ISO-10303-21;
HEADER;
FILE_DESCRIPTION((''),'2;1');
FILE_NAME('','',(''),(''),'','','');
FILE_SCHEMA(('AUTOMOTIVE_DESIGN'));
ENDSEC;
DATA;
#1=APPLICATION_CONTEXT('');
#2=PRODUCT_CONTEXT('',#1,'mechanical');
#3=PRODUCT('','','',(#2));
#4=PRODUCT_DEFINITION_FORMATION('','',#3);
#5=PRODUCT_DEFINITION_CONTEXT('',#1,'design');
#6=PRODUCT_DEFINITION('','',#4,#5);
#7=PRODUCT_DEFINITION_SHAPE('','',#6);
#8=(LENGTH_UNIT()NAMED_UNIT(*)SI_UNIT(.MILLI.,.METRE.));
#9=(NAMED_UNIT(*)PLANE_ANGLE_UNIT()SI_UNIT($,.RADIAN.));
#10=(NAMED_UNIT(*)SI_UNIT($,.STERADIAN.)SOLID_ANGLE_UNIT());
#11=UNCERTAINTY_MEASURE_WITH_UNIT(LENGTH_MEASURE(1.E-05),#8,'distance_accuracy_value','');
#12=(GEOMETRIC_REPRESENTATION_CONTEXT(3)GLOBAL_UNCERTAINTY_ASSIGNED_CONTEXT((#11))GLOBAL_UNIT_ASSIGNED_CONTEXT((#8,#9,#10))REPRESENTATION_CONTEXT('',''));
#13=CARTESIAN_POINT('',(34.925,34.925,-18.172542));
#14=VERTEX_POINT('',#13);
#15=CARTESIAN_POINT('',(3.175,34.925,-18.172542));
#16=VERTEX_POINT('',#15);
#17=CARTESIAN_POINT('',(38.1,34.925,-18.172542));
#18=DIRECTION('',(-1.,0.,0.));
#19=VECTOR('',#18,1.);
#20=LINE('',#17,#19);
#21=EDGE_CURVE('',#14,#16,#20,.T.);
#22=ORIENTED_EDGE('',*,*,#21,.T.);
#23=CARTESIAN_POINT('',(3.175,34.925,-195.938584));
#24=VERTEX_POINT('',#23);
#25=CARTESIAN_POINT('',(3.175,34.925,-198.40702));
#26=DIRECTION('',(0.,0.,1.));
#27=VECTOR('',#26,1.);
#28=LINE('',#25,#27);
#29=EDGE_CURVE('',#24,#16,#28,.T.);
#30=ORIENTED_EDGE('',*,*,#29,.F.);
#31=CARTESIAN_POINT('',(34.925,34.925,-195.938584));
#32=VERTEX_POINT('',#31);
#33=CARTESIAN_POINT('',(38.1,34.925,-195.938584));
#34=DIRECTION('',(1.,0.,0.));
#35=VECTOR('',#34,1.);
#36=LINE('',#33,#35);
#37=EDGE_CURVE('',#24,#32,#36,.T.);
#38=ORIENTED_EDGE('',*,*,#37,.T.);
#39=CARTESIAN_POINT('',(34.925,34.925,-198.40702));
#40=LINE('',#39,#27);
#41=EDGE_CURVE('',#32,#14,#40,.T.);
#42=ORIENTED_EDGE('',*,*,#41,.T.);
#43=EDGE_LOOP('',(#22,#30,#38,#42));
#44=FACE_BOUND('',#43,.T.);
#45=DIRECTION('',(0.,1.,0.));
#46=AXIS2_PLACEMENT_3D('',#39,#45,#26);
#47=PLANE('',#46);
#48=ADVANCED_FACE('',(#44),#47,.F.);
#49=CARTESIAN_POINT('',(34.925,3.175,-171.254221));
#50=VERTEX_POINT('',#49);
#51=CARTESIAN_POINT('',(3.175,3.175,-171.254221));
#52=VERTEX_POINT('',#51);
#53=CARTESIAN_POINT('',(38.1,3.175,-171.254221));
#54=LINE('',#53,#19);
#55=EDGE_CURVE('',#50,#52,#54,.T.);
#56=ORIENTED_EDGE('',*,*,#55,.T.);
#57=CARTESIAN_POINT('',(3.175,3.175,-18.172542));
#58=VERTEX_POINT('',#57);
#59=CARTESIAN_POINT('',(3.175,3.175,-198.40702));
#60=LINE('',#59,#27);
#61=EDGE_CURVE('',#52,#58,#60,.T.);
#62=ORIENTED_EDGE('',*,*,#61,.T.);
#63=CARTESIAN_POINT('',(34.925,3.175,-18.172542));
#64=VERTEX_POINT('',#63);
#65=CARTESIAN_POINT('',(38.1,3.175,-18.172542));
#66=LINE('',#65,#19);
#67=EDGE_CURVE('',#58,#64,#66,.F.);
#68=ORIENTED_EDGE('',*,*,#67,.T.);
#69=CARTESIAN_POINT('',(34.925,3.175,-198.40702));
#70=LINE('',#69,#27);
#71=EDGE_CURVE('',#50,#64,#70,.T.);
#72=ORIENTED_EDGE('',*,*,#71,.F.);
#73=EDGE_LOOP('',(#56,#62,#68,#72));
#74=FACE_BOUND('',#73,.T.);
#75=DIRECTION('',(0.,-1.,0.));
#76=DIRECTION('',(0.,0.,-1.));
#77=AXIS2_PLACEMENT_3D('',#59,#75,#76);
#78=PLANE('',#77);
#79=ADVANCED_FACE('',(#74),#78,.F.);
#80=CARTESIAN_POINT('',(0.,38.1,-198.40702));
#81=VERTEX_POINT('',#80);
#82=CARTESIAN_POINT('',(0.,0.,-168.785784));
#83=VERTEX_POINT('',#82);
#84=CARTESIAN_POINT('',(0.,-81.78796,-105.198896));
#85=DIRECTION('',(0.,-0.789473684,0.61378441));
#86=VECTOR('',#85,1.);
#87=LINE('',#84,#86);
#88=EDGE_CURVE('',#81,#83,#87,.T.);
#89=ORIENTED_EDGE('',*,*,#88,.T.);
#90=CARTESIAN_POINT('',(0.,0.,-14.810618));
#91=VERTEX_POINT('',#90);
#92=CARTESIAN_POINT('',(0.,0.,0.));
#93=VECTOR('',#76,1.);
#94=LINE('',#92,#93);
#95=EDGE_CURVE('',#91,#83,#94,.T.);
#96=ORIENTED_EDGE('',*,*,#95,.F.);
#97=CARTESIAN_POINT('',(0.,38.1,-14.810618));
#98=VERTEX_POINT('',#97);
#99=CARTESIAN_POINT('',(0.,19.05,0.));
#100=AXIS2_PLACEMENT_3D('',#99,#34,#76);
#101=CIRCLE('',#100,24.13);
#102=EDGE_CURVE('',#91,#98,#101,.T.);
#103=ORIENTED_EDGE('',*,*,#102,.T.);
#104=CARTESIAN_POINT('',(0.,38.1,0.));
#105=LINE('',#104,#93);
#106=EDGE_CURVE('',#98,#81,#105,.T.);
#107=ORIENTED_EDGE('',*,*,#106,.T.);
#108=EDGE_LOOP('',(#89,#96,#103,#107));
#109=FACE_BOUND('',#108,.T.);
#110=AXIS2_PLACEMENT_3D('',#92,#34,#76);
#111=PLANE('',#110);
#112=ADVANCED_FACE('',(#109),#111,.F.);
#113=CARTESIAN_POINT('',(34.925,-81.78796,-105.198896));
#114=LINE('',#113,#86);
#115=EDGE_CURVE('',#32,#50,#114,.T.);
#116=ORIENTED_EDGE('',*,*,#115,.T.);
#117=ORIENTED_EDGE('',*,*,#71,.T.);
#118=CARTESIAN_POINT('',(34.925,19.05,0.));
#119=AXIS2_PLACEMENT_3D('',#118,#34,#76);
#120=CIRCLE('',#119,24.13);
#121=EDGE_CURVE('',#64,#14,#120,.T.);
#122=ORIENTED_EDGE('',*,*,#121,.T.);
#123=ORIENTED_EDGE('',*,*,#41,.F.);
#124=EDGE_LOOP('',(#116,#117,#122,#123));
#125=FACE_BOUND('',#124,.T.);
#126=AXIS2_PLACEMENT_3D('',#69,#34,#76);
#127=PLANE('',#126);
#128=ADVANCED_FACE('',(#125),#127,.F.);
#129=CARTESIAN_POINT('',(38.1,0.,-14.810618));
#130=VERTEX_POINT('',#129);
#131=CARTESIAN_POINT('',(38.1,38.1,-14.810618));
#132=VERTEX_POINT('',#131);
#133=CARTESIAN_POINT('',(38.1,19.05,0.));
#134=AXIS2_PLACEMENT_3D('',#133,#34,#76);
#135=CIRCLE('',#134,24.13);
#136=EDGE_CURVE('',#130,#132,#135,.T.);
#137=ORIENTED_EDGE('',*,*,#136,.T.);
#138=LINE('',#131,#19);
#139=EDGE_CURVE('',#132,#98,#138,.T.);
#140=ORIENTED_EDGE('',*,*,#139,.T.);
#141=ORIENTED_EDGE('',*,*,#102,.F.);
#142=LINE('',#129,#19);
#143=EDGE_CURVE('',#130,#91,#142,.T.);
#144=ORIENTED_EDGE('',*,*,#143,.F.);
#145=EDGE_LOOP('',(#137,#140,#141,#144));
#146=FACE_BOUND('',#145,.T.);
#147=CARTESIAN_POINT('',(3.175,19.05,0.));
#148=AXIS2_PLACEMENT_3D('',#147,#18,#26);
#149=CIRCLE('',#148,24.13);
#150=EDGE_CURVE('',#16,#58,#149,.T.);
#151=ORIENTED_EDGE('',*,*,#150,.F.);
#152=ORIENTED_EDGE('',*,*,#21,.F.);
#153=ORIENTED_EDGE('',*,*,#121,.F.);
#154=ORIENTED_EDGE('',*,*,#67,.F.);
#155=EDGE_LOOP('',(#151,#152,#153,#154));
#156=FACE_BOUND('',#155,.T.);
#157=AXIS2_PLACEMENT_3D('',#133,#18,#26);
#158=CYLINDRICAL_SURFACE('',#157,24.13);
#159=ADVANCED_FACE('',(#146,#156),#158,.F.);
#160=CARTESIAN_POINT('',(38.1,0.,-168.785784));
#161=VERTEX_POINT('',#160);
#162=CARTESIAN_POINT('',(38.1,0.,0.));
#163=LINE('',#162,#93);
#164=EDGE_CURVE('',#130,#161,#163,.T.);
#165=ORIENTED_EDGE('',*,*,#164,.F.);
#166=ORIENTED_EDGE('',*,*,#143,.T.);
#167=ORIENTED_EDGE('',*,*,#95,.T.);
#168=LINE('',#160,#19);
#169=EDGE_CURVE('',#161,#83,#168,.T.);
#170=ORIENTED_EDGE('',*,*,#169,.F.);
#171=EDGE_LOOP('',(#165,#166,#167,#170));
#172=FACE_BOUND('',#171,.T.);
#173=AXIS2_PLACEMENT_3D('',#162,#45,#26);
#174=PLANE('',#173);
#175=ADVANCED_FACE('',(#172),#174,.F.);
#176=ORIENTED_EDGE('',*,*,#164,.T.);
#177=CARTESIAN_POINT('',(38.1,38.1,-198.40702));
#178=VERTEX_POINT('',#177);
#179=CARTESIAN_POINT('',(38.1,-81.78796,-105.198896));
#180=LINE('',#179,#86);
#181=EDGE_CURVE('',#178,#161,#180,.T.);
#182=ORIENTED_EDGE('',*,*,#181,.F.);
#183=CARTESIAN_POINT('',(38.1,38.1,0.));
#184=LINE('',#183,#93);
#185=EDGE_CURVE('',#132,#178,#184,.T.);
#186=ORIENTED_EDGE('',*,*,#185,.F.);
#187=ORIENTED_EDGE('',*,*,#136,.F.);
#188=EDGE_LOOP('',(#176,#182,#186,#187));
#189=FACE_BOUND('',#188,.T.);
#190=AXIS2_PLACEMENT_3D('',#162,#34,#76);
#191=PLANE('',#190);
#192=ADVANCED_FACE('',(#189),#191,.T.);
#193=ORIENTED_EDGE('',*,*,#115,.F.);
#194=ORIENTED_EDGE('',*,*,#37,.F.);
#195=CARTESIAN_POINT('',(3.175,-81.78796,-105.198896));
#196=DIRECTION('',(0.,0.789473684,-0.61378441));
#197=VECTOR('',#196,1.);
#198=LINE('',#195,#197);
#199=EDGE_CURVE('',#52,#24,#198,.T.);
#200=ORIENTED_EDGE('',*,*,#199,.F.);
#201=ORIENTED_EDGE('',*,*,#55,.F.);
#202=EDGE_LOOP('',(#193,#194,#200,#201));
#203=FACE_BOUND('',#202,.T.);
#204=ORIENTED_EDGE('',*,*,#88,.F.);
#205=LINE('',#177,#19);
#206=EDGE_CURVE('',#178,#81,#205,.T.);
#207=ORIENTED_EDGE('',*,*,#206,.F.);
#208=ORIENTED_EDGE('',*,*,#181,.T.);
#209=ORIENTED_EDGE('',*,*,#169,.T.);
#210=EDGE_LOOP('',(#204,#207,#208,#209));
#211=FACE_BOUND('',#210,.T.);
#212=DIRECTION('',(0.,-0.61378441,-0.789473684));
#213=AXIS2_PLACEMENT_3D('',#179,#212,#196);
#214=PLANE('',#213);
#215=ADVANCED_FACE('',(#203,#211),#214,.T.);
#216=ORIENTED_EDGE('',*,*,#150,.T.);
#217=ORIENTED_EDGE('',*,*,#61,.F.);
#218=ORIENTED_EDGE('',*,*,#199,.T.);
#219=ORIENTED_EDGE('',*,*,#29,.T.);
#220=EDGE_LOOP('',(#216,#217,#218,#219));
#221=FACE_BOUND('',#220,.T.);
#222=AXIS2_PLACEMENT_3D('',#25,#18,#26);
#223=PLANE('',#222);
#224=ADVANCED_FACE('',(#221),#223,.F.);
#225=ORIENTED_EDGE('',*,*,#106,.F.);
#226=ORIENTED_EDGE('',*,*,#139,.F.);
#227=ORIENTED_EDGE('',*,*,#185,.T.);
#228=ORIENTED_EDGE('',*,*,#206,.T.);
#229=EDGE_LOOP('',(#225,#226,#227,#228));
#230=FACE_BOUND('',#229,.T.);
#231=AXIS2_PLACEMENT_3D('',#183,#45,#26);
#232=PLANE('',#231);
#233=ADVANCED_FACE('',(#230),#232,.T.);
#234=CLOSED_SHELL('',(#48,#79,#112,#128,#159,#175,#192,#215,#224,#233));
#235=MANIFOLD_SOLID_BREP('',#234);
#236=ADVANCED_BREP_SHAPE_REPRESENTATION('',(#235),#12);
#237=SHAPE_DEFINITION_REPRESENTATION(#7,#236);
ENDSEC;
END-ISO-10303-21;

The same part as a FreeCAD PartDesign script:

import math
import FreeCAD as App
import Part
import Sketcher

V = App.Vector
Q = App.Units.Quantity


def add_polygon(sketch, points):
    """Adds a closed chain of lines whose ends are joined by coincident constraints."""
    first, n = sketch.GeometryCount, len(points)
    for a, b in zip(points, points[1:] + points[:1]):
        sketch.addGeometry(Part.LineSegment(App.Vector(*a, 0), App.Vector(*b, 0)), False)
    for i in range(n):
        sketch.addConstraint(Sketcher.Constraint("Coincident", first + i, 2, first + (i + 1) % n, 1))

doc = App.newDocument("Part")
body = doc.addObject("PartDesign::Body", "Body")

# Sketch on YZ plane
sketch1 = doc.addObject("Sketcher::SketchObject", "Sketch")
body.addObject(sketch1)
sketch1.AttachmentSupport = (doc.YZ_Plane, [""])
sketch1.MapMode = "FlatFace"
sketch1.addGeometry([
    Part.LineSegment(V(0, -168.785784, 0), V(38.1, -198.40702, 0)),  # 0
    Part.LineSegment(V(38.1, -198.40702, 0), V(38.1, -14.810618, 0)),  # 1
    Part.ArcOfCircle(Part.Circle(V(19.05, 0, 0), V(0, 0, 1), 24.13), math.radians(-90), math.radians(-37.863646)),  # 2
    Part.ArcOfCircle(Part.Circle(V(19.05, 0, 0), V(0, 0, 1), 24.13), math.radians(-142.136354), math.radians(-90)),  # 3
    Part.LineSegment(V(0, -14.810618, 0), V(0, -168.785784, 0)),  # 4
], False)
sketch1.addConstraint([
    Sketcher.Constraint("Coincident", 0, 2, 1, 1),
    Sketcher.Constraint("Coincident", 1, 2, 2, 2),
    Sketcher.Constraint("Tangent", 2, 1, 3, 2),
    Sketcher.Constraint("Coincident", 3, 1, 4, 1),
    Sketcher.Constraint("Coincident", 4, 2, 0, 1),
    Sketcher.Constraint("Vertical", 1),
    Sketcher.Constraint("Vertical", 4),
    Sketcher.Constraint("Equal", 2, 3),
    Sketcher.Constraint("PointOnObject", 2, 3, -1),
    Sketcher.Constraint("PointOnObject", 3, 1, -2),
    Sketcher.Constraint("Horizontal", 1, 2, 3, 1),
    Sketcher.Constraint("Vertical", 3, 3, 2, 1),
    Sketcher.Constraint("Radius", 2, Q("0.95 in")),
    Sketcher.Constraint("Distance", 0, Q("1.9 in")),
    Sketcher.Constraint("DistanceX", -1, 1, 0, 2, Q("1.5 in")),
    Sketcher.Constraint("DistanceY", 0, 2, -1, 1, Q("7.8113 in")),
])
pad1 = doc.addObject("PartDesign::Pad", "Pad")
body.addObject(pad1)
pad1.Profile = sketch1
pad1.Length = Q("1.5 in")

# Sketch on XY plane
sketch2 = doc.addObject("Sketcher::SketchObject", "Sketch001")
body.addObject(sketch2)
sketch2.AttachmentSupport = (doc.XY_Plane, [""])
sketch2.MapMode = "FlatFace"
add_polygon(sketch2, [(3.175, 34.925), (3.175, 3.175), (34.925, 3.175), (34.925, 34.925)])  # lines 0-3
sketch2.addConstraint([
    Sketcher.Constraint("Vertical", 0),
    Sketcher.Constraint("Horizontal", 1),
    Sketcher.Constraint("Vertical", 2),
    Sketcher.Constraint("Horizontal", 3),
    Sketcher.Constraint("Equal", 3, 0),
    Sketcher.Constraint("DistanceX", 1, 1, 1, 2, Q("1.25 in")),
    Sketcher.Constraint("DistanceX", -1, 1, 0, 2, Q("0.125 in")),
    Sketcher.Constraint("DistanceY", -1, 1, 0, 2, Q("0.125 in")),
])
pocket1 = doc.addObject("PartDesign::Pocket", "Pocket")
body.addObject(pocket1)
pocket1.Profile = sketch2
pocket1.Type = "ThroughAll"

doc.recompute()
